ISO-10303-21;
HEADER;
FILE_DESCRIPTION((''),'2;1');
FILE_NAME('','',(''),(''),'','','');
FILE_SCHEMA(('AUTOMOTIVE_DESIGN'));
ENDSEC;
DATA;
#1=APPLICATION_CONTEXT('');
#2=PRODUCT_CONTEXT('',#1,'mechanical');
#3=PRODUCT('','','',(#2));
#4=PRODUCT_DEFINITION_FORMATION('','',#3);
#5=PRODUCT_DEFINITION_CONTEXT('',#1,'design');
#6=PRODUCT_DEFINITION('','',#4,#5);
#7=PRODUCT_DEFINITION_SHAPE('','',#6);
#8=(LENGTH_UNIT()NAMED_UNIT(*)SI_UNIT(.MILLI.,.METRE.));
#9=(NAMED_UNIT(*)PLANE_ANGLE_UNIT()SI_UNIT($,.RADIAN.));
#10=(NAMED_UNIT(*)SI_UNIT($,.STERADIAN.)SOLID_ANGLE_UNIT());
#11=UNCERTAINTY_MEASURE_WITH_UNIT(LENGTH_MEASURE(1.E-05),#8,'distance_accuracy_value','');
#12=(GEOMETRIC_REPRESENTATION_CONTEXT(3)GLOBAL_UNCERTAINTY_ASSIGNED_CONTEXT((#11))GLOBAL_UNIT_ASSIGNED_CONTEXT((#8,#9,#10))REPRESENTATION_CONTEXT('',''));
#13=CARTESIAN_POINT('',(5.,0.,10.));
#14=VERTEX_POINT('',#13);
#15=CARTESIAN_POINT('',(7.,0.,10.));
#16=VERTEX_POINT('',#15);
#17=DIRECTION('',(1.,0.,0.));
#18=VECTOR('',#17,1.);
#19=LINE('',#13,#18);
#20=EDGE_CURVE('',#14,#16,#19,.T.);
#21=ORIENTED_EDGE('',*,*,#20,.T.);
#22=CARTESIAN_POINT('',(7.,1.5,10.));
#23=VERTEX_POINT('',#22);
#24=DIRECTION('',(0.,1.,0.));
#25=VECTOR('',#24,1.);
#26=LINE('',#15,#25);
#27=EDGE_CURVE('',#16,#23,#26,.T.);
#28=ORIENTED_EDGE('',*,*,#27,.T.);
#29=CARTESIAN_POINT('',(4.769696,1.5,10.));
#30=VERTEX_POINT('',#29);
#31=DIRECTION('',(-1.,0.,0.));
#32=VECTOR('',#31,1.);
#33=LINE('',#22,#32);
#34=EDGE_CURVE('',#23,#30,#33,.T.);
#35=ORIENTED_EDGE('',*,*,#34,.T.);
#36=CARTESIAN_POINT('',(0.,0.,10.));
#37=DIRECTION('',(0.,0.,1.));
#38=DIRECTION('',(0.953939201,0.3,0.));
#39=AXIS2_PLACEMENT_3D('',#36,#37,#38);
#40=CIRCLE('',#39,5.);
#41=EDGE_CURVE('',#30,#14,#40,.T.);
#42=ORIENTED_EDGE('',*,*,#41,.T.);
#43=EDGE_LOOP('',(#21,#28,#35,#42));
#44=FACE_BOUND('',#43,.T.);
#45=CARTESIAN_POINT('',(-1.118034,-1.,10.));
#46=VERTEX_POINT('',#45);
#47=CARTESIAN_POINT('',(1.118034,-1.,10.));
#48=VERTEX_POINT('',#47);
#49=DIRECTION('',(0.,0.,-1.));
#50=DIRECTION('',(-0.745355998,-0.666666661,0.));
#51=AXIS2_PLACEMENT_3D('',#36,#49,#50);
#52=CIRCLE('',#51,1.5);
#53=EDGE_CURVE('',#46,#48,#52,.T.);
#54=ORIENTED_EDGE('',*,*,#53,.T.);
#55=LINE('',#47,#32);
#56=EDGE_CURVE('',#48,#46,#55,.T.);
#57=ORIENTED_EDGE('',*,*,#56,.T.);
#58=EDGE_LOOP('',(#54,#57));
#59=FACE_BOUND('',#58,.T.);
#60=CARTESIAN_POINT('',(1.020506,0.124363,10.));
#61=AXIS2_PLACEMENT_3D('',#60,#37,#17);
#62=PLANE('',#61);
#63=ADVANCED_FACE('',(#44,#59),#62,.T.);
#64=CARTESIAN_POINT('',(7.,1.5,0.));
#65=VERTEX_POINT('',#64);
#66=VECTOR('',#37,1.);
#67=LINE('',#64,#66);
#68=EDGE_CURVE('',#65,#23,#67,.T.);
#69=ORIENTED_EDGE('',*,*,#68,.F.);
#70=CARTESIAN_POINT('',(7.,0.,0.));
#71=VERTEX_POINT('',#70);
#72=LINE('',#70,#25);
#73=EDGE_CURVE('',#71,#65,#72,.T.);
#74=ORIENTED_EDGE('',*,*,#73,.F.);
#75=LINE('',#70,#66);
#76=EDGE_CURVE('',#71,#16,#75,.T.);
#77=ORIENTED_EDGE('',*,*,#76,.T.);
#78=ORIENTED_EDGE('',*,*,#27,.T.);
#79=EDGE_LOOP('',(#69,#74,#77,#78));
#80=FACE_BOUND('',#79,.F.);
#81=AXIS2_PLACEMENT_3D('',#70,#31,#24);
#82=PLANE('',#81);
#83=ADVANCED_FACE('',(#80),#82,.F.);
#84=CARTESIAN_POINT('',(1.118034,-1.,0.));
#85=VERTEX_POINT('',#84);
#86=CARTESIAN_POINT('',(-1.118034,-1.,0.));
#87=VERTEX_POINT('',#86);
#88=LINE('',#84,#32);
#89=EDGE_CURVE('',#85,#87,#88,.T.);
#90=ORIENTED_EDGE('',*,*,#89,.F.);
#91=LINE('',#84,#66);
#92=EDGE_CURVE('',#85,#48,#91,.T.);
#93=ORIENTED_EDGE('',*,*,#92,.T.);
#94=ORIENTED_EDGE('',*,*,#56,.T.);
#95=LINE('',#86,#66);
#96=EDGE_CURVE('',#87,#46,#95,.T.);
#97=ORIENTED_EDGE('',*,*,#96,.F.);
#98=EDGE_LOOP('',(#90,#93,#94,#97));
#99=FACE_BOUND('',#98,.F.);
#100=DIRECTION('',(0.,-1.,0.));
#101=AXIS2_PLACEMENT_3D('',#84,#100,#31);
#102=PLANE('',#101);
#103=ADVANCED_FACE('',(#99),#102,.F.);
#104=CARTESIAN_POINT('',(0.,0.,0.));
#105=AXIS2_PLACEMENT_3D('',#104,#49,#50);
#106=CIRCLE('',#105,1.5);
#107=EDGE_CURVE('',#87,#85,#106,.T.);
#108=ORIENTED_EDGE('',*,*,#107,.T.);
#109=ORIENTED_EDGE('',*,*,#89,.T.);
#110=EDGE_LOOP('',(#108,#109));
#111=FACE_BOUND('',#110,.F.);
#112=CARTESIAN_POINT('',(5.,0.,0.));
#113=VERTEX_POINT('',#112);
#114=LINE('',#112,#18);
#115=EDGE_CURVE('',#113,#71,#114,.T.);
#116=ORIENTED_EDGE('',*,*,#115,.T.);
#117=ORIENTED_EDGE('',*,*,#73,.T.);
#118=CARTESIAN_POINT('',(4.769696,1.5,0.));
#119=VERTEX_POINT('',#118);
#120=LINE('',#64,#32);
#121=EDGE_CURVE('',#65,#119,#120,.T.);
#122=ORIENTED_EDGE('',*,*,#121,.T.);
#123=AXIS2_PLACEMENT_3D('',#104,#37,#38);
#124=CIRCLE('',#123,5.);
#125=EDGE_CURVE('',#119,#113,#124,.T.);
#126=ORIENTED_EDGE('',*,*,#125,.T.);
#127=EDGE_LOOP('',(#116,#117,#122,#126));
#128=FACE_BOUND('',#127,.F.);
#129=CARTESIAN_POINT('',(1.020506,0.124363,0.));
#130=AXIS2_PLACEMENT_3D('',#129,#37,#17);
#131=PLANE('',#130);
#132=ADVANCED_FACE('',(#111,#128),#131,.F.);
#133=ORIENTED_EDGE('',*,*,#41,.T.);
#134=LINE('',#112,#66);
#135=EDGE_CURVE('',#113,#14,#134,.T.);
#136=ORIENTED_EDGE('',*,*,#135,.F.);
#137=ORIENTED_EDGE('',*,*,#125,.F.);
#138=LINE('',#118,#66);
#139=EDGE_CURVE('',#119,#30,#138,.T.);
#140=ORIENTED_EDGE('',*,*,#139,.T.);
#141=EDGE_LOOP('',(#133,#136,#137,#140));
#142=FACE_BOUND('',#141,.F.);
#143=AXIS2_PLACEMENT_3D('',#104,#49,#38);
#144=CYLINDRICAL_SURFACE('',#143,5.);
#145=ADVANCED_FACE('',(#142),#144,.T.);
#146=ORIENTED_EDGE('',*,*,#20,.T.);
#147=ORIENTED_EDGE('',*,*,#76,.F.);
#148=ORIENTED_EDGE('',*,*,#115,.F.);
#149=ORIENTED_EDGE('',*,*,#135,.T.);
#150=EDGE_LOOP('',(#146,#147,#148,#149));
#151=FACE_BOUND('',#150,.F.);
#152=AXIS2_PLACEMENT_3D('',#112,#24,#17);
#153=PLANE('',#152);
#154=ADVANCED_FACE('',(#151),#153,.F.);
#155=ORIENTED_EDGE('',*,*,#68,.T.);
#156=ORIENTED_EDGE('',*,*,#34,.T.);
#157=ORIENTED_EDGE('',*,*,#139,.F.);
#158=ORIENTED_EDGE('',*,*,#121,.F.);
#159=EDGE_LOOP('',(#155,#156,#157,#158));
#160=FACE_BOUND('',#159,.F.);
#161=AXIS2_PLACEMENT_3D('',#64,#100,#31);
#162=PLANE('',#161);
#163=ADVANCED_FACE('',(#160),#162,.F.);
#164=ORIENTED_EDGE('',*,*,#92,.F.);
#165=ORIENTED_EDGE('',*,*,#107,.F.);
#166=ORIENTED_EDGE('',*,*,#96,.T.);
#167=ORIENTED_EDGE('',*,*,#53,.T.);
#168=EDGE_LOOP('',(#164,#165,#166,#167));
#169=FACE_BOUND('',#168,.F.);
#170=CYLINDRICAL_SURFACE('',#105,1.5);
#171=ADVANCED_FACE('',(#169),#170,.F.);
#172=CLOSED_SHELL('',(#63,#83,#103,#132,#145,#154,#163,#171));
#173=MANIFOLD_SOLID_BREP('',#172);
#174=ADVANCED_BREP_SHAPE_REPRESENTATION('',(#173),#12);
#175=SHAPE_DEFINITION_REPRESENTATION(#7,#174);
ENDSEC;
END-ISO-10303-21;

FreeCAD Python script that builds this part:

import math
import FreeCAD as App
import Part
import Sketcher
from FreeCAD import Vector

doc = App.newDocument("Part")
body = doc.addObject("PartDesign::Body", "Body")

# Sketch on XY plane
sketch1 = body.newObject("Sketcher::SketchObject", "Sketch")
sketch1.AttachmentSupport = (doc.getObject("XY_Plane"), [""])
sketch1.MapMode = "FlatFace"
sketch1.addGeometry([
    Part.LineSegment(Vector(7, 1.5, 0), Vector(4.8, 1.5, 0)),  # 0
    Part.ArcOfCircle(Part.Circle(Vector(0, 0, 0), Vector(0, 0, 1), 5), math.radians(17), math.radians(360)),  # 1
    Part.LineSegment(Vector(5, 0, 0), Vector(7, 0, 0)),  # 2
    Part.LineSegment(Vector(7, 0, 0), Vector(7, 1.5, 0)),  # 3
    Part.LineSegment(Vector(1.1, -1, 0), Vector(-1.1, -1, 0)),  # 4
    Part.ArcOfCircle(Part.Circle(Vector(0, 0, 0), Vector(0, 0, 1), 1.5), math.radians(-42), math.radians(222)),  # 5
], False)
sketch1.addConstraint([
    Sketcher.Constraint("Coincident", 0, 2, 1, 1),
    Sketcher.Constraint("Coincident", 1, 2, 2, 1),
    Sketcher.Constraint("Coincident", 2, 2, 3, 1),
    Sketcher.Constraint("Coincident", 3, 2, 0, 1),
    Sketcher.Constraint("Coincident", 4, 1, 5, 1),
    Sketcher.Constraint("Coincident", 5, 2, 4, 2),
    Sketcher.Constraint("Horizontal", 0),
    Sketcher.Constraint("Horizontal", 2),
    Sketcher.Constraint("Vertical", 3),
    Sketcher.Constraint("Horizontal", 4),
    Sketcher.Constraint("Coincident", 1, 3, -1, 1),
    Sketcher.Constraint("Coincident", 5, 3, -1, 1),
    Sketcher.Constraint("PointOnObject", 1, 2, -1),
    Sketcher.Constraint("Radius", 1, 5.0),
    Sketcher.Constraint("Radius", 5, 1.5),
    Sketcher.Constraint("DistanceX", 2, 1, 2, 2, 2.0),
    Sketcher.Constraint("DistanceY", 3, 1, 3, 2, 1.5),
    Sketcher.Constraint("DistanceY", 4, 1, -1, 1, 1.0),
])
pad1 = body.newObject("PartDesign::Pad", "Pad")
pad1.Profile = sketch1
pad1.Length = 10

# Sketch on XY plane
sketch2 = body.newObject("Sketcher::SketchObject", "Sketch001")
sketch2.AttachmentSupport = (doc.getObject("XY_Plane"), [""])
sketch2.MapMode = "FlatFace"
sketch2.addGeometry([
    Part.LineSegment(Vector(7, 1.5, 0), Vector(4.8, 1.5, 0)),  # 0
    Part.ArcOfCircle(Part.Circle(Vector(0, 0, 0), Vector(0, 0, 1), 5), math.radians(17), math.radians(360)),  # 1
    Part.LineSegment(Vector(5, 0, 0), Vector(7, 0, 0)),  # 2
    Part.LineSegment(Vector(7, 0, 0), Vector(7, 1.5, 0)),  # 3
    Part.LineSegment(Vector(1.1, -1, 0), Vector(-1.1, -1, 0)),  # 4
    Part.ArcOfCircle(Part.Circle(Vector(0, 0, 0), Vector(0, 0, 1), 1.5), math.radians(-42), math.radians(222)),  # 5
], False)
sketch2.addConstraint([
    Sketcher.Constraint("Coincident", 0, 2, 1, 1),
    Sketcher.Constraint("Coincident", 1, 2, 2, 1),
    Sketcher.Constraint("Coincident", 2, 2, 3, 1),
    Sketcher.Constraint("Coincident", 3, 2, 0, 1),
    Sketcher.Constraint("Coincident", 4, 1, 5, 1),
    Sketcher.Constraint("Coincident", 5, 2, 4, 2),
    Sketcher.Constraint("Horizontal", 0),
    Sketcher.Constraint("Horizontal", 2),
    Sketcher.Constraint("Vertical", 3),
    Sketcher.Constraint("Horizontal", 4),
    Sketcher.Constraint("Coincident", 1, 3, -1, 1),
    Sketcher.Constraint("Coincident", 5, 3, -1, 1),
    Sketcher.Constraint("PointOnObject", 1, 2, -1),
    Sketcher.Constraint("Radius", 1, 5.0),
    Sketcher.Constraint("Radius", 5, 1.5),
    Sketcher.Constraint("DistanceX", 2, 1, 2, 2, 2.0),
    Sketcher.Constraint("DistanceY", 3, 1, 3, 2, 1.5),
    Sketcher.Constraint("DistanceY", 4, 1, -1, 1, 1.0),
])
pad2 = body.newObject("PartDesign::Pad", "Pad001")
pad2.Profile = sketch2
pad2.Length = 10

doc.recompute()
